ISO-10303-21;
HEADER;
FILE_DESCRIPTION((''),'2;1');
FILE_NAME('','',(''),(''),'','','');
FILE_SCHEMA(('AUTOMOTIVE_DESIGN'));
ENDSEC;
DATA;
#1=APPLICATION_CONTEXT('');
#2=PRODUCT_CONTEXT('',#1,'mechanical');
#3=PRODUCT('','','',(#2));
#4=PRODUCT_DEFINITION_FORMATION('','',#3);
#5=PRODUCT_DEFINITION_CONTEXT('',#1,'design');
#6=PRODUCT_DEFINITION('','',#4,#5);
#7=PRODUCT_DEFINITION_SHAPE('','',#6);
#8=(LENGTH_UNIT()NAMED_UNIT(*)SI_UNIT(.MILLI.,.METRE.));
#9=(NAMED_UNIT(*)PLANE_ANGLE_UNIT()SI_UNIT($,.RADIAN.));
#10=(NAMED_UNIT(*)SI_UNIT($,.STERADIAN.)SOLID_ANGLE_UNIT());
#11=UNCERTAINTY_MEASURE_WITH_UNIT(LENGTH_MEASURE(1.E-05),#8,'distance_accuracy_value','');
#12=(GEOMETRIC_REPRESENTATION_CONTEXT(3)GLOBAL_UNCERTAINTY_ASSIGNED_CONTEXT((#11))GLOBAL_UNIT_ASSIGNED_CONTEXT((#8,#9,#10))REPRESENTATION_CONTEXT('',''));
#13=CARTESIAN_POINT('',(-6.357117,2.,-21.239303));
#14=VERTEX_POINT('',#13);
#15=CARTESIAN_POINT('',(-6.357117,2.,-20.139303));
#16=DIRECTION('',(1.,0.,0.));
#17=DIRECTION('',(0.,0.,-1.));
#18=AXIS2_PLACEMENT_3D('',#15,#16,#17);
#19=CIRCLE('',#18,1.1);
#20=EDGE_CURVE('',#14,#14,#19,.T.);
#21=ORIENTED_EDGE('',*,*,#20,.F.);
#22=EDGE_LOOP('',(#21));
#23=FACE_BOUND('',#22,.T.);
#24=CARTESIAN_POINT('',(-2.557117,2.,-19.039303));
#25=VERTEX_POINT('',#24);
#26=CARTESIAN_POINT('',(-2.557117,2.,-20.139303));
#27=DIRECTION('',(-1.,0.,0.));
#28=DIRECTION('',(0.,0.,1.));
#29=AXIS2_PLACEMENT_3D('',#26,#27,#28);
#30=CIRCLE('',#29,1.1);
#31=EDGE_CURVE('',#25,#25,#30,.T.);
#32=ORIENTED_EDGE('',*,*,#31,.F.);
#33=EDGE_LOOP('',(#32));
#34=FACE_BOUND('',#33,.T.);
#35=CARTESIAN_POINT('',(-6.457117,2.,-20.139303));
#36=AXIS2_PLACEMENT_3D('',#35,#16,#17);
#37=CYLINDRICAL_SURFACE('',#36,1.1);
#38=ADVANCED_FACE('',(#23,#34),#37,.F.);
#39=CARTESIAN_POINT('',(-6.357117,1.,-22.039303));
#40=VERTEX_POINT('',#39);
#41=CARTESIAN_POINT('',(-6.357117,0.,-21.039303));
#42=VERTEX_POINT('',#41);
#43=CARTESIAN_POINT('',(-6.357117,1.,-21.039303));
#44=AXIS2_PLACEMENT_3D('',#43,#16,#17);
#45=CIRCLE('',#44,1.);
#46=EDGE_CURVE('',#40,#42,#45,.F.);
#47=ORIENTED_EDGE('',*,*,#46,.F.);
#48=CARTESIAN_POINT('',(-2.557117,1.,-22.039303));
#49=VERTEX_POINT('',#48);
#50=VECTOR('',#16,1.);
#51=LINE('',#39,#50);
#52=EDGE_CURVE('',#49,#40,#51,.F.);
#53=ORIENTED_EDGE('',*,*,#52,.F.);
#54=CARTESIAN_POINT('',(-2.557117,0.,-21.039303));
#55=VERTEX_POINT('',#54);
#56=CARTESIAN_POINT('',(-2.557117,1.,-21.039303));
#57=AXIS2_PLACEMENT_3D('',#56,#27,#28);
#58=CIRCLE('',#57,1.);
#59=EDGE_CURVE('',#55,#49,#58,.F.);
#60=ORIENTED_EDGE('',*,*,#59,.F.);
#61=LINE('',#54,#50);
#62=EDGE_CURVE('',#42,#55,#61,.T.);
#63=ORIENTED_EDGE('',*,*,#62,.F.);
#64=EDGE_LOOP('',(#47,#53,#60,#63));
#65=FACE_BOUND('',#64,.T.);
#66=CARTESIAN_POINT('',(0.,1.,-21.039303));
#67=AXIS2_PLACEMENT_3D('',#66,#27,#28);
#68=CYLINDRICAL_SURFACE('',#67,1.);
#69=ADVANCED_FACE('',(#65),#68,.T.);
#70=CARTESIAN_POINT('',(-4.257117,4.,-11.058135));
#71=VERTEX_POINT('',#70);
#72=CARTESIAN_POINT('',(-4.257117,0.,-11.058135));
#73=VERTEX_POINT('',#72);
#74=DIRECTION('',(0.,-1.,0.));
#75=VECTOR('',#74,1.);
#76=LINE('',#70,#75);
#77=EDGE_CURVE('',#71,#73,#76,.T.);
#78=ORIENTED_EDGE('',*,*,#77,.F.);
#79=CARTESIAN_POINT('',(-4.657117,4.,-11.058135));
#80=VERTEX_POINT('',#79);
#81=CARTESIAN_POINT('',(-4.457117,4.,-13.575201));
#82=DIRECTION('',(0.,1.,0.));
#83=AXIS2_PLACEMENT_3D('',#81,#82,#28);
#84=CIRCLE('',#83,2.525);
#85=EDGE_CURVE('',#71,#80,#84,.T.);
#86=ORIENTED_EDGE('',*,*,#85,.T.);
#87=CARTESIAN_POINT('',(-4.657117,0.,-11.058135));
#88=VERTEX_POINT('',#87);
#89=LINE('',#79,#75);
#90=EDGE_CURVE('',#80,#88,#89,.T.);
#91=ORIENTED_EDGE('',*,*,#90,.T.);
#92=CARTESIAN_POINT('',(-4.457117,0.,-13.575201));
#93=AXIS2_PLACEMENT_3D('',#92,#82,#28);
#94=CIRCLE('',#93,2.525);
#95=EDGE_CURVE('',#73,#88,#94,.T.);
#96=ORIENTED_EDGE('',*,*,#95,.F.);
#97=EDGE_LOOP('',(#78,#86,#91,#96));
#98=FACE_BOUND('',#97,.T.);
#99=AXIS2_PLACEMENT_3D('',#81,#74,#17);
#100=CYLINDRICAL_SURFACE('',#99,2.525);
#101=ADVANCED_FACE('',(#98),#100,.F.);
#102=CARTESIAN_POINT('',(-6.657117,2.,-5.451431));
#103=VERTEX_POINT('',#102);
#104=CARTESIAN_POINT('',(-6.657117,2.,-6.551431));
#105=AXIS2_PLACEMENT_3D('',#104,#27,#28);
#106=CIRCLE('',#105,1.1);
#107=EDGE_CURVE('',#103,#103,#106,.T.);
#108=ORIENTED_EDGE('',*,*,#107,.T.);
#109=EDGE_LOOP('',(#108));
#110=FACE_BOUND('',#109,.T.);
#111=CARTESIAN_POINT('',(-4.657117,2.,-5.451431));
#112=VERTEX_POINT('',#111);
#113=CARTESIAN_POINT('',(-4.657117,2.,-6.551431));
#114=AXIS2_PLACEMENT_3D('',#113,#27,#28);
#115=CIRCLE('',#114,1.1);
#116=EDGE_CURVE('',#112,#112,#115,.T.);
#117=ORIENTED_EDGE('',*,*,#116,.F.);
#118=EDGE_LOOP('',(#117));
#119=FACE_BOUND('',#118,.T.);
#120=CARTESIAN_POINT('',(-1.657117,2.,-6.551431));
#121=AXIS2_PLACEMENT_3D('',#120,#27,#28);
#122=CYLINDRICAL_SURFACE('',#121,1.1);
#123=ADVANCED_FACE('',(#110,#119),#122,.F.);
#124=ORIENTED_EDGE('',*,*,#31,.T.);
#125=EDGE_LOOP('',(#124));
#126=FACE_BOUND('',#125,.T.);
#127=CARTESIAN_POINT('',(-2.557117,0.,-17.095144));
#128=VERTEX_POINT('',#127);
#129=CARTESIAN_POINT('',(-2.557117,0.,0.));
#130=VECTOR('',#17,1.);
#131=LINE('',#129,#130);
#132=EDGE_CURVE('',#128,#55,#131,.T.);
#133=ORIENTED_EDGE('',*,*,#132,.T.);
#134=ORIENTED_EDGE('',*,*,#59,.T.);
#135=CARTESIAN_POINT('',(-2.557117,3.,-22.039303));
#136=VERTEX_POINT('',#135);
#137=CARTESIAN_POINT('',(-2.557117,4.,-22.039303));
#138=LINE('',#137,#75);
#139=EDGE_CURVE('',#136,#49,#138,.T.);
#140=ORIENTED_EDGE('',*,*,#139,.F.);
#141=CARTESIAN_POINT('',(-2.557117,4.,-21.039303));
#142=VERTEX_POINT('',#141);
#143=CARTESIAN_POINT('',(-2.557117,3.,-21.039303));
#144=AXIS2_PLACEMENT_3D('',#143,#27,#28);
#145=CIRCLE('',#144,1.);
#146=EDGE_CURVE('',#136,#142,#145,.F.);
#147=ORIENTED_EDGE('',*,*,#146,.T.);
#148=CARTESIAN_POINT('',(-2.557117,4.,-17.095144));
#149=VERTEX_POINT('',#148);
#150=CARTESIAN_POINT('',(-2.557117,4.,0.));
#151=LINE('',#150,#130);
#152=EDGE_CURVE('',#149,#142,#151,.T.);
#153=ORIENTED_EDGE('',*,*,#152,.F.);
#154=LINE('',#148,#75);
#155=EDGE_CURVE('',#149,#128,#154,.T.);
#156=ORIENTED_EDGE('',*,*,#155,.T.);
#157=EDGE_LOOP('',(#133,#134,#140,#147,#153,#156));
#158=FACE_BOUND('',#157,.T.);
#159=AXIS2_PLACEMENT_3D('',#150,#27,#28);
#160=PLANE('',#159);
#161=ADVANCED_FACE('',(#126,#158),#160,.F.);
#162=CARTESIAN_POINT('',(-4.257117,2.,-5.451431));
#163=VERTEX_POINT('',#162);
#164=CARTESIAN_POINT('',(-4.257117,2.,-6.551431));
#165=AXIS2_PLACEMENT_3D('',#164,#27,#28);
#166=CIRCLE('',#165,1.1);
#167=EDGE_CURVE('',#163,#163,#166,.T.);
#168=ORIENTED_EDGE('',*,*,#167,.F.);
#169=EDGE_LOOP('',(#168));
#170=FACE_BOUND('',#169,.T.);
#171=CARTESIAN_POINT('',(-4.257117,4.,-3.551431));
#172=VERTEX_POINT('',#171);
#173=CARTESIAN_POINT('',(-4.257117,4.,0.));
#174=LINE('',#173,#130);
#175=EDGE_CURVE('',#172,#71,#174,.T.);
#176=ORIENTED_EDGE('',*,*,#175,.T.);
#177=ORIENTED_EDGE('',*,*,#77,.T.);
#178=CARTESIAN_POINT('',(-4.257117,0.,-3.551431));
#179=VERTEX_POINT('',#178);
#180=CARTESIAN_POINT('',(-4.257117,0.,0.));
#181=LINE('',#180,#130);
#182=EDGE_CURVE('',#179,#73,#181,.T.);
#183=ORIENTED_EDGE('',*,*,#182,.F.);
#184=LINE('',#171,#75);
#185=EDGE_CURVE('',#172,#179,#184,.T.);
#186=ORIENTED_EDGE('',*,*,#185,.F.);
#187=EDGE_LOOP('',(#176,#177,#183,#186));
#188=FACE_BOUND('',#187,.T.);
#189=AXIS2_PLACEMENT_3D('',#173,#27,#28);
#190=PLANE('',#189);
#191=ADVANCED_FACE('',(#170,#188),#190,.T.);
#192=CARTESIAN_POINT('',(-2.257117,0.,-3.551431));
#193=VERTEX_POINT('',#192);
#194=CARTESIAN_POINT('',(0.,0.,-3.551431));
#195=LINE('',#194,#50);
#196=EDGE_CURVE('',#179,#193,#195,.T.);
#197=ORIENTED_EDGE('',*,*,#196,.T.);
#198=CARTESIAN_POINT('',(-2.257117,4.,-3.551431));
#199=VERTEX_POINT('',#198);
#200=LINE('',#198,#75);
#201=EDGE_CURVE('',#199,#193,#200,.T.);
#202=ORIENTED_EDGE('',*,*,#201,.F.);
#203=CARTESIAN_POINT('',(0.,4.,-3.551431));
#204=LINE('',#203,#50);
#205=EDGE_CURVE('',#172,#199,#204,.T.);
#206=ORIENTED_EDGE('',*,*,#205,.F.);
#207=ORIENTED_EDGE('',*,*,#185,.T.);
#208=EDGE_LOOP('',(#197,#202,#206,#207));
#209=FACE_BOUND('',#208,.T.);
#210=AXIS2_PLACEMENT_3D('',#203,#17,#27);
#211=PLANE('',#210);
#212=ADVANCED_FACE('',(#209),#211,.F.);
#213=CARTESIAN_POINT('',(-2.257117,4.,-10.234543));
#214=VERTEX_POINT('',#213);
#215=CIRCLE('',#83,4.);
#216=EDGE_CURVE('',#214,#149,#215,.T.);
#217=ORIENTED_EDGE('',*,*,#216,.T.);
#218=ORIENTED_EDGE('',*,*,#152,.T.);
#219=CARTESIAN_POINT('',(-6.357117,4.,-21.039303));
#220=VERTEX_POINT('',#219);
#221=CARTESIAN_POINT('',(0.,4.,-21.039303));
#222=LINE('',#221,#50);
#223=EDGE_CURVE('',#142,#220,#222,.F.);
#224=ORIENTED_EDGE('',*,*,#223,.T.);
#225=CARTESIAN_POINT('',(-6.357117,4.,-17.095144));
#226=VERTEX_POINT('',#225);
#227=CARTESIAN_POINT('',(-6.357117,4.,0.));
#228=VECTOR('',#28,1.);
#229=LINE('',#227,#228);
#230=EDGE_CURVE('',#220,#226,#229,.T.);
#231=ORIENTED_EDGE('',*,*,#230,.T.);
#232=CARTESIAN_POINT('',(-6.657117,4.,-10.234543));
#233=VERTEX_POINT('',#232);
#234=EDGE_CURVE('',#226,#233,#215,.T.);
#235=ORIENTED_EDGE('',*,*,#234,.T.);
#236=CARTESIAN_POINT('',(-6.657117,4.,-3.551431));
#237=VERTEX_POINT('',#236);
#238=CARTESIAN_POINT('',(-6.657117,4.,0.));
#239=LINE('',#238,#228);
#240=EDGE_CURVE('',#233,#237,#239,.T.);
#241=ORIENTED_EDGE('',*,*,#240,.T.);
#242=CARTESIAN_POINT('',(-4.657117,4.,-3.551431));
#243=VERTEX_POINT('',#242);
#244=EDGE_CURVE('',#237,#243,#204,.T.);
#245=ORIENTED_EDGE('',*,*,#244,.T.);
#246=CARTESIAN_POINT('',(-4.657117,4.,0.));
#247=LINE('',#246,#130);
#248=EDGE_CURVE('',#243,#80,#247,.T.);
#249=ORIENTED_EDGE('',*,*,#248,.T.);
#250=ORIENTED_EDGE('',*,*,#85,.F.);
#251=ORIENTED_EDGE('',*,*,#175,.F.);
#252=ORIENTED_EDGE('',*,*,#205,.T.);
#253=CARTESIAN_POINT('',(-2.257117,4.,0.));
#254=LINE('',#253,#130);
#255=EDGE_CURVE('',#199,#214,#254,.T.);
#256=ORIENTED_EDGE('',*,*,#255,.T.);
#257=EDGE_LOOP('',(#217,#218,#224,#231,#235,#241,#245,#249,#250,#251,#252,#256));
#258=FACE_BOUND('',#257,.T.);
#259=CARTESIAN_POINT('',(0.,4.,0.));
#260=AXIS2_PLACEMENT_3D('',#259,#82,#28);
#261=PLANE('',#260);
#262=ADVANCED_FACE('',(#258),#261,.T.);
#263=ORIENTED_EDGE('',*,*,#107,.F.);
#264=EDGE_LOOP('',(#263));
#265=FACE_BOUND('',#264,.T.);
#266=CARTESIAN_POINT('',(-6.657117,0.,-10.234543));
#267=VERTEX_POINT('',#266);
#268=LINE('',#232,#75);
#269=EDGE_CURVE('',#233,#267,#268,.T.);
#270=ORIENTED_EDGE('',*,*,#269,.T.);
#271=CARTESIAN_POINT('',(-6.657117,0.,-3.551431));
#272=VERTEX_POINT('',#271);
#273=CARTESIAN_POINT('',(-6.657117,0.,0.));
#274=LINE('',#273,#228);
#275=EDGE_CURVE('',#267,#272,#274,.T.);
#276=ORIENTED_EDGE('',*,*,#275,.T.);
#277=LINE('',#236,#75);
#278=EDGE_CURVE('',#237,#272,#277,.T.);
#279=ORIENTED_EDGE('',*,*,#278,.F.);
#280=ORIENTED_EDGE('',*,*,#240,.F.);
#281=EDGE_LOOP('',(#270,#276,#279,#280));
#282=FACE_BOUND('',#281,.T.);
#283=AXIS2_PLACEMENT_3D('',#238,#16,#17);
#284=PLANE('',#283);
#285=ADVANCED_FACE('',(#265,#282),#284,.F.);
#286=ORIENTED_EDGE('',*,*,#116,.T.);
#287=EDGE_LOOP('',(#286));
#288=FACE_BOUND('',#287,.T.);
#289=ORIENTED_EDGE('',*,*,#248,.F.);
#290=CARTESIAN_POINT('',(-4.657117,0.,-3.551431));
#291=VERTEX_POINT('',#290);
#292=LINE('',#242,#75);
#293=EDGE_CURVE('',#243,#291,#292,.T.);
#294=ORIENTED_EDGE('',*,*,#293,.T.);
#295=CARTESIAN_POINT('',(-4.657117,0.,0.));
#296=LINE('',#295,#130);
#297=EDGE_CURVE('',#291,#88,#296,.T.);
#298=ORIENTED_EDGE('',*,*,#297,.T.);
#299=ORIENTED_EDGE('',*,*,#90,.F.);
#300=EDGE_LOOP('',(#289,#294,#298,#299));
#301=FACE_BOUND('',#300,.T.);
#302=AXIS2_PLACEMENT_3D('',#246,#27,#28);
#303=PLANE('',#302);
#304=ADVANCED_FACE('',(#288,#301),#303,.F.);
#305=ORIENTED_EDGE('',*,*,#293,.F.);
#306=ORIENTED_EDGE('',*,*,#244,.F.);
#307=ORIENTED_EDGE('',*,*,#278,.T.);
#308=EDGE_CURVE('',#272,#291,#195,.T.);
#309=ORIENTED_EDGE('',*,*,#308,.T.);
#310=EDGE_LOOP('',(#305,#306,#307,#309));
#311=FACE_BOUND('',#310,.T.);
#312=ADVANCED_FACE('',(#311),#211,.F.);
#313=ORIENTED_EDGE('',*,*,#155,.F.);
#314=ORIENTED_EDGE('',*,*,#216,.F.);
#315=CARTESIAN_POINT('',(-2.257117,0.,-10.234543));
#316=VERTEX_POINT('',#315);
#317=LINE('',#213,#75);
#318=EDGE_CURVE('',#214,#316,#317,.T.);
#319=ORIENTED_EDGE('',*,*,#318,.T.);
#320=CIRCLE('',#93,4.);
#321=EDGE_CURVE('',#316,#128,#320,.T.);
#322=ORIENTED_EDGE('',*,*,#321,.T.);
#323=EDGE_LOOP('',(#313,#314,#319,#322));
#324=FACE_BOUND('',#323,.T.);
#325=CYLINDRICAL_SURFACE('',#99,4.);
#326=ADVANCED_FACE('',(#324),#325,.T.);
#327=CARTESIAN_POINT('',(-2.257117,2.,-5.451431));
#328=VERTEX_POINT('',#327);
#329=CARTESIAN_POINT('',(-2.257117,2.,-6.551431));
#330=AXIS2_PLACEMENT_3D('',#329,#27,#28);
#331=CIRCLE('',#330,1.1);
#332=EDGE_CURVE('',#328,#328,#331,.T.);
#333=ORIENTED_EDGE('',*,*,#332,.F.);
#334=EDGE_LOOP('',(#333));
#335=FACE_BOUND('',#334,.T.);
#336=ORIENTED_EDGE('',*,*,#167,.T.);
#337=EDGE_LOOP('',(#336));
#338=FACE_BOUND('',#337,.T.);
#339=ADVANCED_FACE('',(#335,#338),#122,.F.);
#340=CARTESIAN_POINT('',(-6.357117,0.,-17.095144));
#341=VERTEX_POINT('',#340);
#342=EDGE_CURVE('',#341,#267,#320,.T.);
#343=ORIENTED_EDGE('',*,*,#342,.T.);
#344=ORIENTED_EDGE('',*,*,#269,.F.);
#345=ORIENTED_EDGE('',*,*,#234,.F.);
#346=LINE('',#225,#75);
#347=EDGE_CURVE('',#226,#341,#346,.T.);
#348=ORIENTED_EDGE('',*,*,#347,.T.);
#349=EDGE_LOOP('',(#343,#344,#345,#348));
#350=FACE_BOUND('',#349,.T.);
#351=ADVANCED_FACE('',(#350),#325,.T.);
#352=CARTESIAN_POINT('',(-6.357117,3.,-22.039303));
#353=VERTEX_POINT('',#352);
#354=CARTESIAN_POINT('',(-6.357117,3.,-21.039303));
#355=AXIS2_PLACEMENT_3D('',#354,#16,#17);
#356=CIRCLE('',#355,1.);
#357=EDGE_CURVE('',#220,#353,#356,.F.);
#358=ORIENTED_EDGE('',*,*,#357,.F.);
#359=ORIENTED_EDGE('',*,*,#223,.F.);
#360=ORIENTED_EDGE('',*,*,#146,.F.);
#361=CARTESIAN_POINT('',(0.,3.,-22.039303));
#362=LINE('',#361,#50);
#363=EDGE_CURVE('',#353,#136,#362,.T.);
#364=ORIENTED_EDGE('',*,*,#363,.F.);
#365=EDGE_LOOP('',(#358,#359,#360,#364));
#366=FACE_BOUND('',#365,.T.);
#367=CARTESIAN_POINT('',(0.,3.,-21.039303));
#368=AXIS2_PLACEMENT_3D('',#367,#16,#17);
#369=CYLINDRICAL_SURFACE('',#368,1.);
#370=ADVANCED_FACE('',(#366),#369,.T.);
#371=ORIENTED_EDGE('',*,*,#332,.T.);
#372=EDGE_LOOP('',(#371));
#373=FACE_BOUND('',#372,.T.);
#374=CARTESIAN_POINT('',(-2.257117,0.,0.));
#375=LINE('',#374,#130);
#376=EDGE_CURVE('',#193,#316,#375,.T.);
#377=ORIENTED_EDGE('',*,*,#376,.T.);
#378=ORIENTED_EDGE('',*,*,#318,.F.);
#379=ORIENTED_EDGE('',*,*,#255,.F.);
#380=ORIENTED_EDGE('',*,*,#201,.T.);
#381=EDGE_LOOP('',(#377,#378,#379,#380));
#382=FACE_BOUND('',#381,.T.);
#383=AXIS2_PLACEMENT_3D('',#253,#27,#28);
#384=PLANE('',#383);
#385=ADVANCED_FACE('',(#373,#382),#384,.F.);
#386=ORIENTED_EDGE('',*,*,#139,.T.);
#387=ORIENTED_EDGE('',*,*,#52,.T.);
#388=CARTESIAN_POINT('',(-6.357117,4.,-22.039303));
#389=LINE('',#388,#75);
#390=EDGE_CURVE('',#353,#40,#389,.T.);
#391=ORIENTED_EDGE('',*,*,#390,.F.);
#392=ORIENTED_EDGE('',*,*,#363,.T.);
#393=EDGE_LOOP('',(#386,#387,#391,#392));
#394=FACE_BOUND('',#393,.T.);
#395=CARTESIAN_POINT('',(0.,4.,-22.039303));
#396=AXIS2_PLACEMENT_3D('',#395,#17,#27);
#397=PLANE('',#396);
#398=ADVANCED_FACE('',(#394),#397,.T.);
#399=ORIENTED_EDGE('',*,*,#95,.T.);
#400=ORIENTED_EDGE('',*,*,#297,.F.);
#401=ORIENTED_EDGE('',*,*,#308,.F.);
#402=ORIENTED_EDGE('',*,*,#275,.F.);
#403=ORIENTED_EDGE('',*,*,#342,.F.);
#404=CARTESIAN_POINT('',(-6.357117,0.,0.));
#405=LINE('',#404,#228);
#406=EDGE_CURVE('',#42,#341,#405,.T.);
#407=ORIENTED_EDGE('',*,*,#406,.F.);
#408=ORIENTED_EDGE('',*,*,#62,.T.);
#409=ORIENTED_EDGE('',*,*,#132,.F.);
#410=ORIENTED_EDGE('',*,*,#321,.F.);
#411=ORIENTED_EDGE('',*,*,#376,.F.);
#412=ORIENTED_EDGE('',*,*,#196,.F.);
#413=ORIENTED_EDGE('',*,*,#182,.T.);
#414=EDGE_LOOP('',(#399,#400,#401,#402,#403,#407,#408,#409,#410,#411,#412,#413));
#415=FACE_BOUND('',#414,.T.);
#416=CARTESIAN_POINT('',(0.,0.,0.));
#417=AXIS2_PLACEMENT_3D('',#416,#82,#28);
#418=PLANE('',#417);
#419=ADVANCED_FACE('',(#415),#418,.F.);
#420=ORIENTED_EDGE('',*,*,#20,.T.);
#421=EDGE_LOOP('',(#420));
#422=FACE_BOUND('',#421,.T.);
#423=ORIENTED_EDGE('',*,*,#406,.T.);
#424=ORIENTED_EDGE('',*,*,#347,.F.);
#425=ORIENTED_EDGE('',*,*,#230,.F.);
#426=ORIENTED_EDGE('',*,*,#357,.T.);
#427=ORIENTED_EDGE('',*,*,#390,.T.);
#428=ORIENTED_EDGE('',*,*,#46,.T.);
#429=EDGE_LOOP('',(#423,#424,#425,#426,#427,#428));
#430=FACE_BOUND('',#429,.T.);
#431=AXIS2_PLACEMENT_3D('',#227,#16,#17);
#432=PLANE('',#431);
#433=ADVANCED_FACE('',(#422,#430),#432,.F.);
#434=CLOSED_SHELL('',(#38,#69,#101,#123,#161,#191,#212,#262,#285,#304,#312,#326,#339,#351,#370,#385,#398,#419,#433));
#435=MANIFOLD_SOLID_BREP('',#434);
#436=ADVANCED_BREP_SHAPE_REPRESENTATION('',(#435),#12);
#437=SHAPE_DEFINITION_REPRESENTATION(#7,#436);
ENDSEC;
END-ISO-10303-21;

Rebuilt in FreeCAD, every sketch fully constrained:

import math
import FreeCAD as App
import Part
import Sketcher


def edges_at(feature, points):
    """Names of the edges that pass closest to the given points."""
    edges = feature.Shape.Edges
    near = lambda p: min(range(len(edges)), key=lambda i: edges[i].distToShape(Part.Vertex(*p))[0])
    return sorted({f"Edge{near(p) + 1}" for p in points})

doc = App.newDocument("Part")
body = doc.addObject("PartDesign::Body", "Body")

# Sketch on XZ plane
sketch1 = body.newObject("Sketcher::SketchObject", "Sketch")
sketch1.AttachmentSupport = (doc.getObject("XZ_Plane"), [""])
sketch1.MapMode = "FlatFace"
sketch1.addGeometry(Part.LineSegment(App.Vector(-6.66, -10.23, 0), App.Vector(-6.66, -3.55, 0)), False)
sketch1.addGeometry(Part.LineSegment(App.Vector(-6.66, -3.55, 0), App.Vector(-4.66, -3.55, 0)), False)
sketch1.addGeometry(Part.LineSegment(App.Vector(-4.66, -3.55, 0), App.Vector(-4.66, -11.06, 0)), False)
sketch1.addGeometry(Part.ArcOfCircle(Part.Circle(App.Vector(-4.46, -13.58, 0), App.Vector(0, 0, 1), 2.52), math.radians(95), math.radians(445)), False)
sketch1.addGeometry(Part.LineSegment(App.Vector(-4.26, -11.06, 0), App.Vector(-4.26, -3.55, 0)), False)
sketch1.addGeometry(Part.LineSegment(App.Vector(-4.26, -3.55, 0), App.Vector(-2.26, -3.55, 0)), False)
sketch1.addGeometry(Part.LineSegment(App.Vector(-2.26, -3.55, 0), App.Vector(-2.26, -10.23, 0)), False)
sketch1.addGeometry(Part.ArcOfCircle(Part.Circle(App.Vector(-4.46, -13.58, 0), App.Vector(0, 0, 1), 4), math.radians(-62), math.radians(57)), False)
sketch1.addGeometry(Part.LineSegment(App.Vector(-2.56, -17.1, 0), App.Vector(-2.56, -22.04, 0)), False)
sketch1.addGeometry(Part.LineSegment(App.Vector(-2.56, -22.04, 0), App.Vector(-6.36, -22.04, 0)), False)
sketch1.addGeometry(Part.LineSegment(App.Vector(-6.36, -22.04, 0), App.Vector(-6.36, -17.1, 0)), False)
sketch1.addGeometry(Part.ArcOfCircle(Part.Circle(App.Vector(-4.46, -13.58, 0), App.Vector(0, 0, 1), 4), math.radians(123), math.radians(242)), False)
sketch1.addConstraint(Sketcher.Constraint("Coincident", 0, 2, 1, 1))
sketch1.addConstraint(Sketcher.Constraint("Coincident", 1, 2, 2, 1))
sketch1.addConstraint(Sketcher.Constraint("Coincident", 2, 2, 3, 1))
sketch1.addConstraint(Sketcher.Constraint("Coincident", 3, 2, 4, 1))
sketch1.addConstraint(Sketcher.Constraint("Coincident", 4, 2, 5, 1))
sketch1.addConstraint(Sketcher.Constraint("Coincident", 5, 2, 6, 1))
sketch1.addConstraint(Sketcher.Constraint("Coincident", 6, 2, 7, 2))
sketch1.addConstraint(Sketcher.Constraint("Coincident", 7, 1, 8, 1))
sketch1.addConstraint(Sketcher.Constraint("Coincident", 8, 2, 9, 1))
sketch1.addConstraint(Sketcher.Constraint("Coincident", 9, 2, 10, 1))
sketch1.addConstraint(Sketcher.Constraint("Coincident", 10, 2, 11, 2))
sketch1.addConstraint(Sketcher.Constraint("Coincident", 11, 1, 0, 1))
sketch1.addConstraint(Sketcher.Constraint("Vertical", 0))
sketch1.addConstraint(Sketcher.Constraint("Horizontal", 1))
sketch1.addConstraint(Sketcher.Constraint("Vertical", 2))
sketch1.addConstraint(Sketcher.Constraint("Vertical", 4))
sketch1.addConstraint(Sketcher.Constraint("Horizontal", 5))
sketch1.addConstraint(Sketcher.Constraint("Vertical", 6))
sketch1.addConstraint(Sketcher.Constraint("Vertical", 8))
sketch1.addConstraint(Sketcher.Constraint("Horizontal", 9))
sketch1.addConstraint(Sketcher.Constraint("Vertical", 10))
sketch1.addConstraint(Sketcher.Constraint("Coincident", 7, 3, 3, 3))
sketch1.addConstraint(Sketcher.Constraint("Coincident", 11, 3, 3, 3))
sketch1.addConstraint(Sketcher.Constraint("Equal", 7, 11))
sketch1.addConstraint(Sketcher.Constraint("Horizontal", 2, 2, 3, 2))
sketch1.addConstraint(Sketcher.Constraint("Horizontal", 1, 2, 4, 2))
sketch1.addConstraint(Sketcher.Constraint("Horizontal", 7, 1, 10, 2))
sketch1.addConstraint(Sketcher.Constraint("Horizontal", 6, 2, 11, 1))
sketch1.addConstraint(Sketcher.Constraint("Radius", 7, 4.0))
sketch1.addConstraint(Sketcher.Constraint("DistanceX", 1, 1, 1, 2, 2.0))
sketch1.addConstraint(Sketcher.Constraint("DistanceX", 9, 2, 9, 1, 3.8))
sketch1.addConstraint(Sketcher.Constraint("Radius", 3, 2.525))
sketch1.addConstraint(Sketcher.Constraint("DistanceX", 0, 2, 7, 3, 2.2))
sketch1.addConstraint(Sketcher.Constraint("DistanceY", 0, 1, 0, 2, 6.683112))
sketch1.addConstraint(Sketcher.Constraint("DistanceY", 8, 2, 8, 1, 4.944158))
sketch1.addConstraint(Sketcher.Constraint("DistanceY", 3, 3, -1, 1, 13.575201))
sketch1.addConstraint(Sketcher.Constraint("DistanceX", 3, 3, -1, 1, 4.457117))
pad1 = body.newObject("PartDesign::Pad", "Pad")
pad1.Profile = sketch1
pad1.Length = 4
pad1.Reversed = True

# Sketch on YZ plane
sketch2 = body.newObject("Sketcher::SketchObject", "Sketch001")
sketch2.AttachmentSupport = (doc.getObject("YZ_Plane"), [""])
sketch2.MapMode = "FlatFace"
sketch2.AttachmentOffset = App.Placement(App.Vector(0, 0, -2.457117), App.Rotation())
sketch2.addGeometry(Part.Circle(App.Vector(2, -20.1, 0), App.Vector(0, 0, 1), 1.1), False)
sketch2.addConstraint(Sketcher.Constraint("Diameter", 0, 2.2))
sketch2.addConstraint(Sketcher.Constraint("DistanceX", -1, 1, 0, 3, 2.0))
sketch2.addConstraint(Sketcher.Constraint("DistanceY", 0, 3, -1, 1, 20.139303))
pocket1 = body.newObject("PartDesign::Pocket", "Pocket")
pocket1.Profile = sketch2
pocket1.Length = 4

# Sketch on YZ plane
sketch3 = body.newObject("Sketcher::SketchObject", "Sketch002")
sketch3.AttachmentSupport = (doc.getObject("YZ_Plane"), [""])
sketch3.MapMode = "FlatFace"
sketch3.AttachmentOffset = App.Placement(App.Vector(0, 0, -6.657117), App.Rotation())
sketch3.addGeometry(Part.Circle(App.Vector(2, -6.6, 0), App.Vector(0, 0, 1), 1.1), False)
sketch3.addConstraint(Sketcher.Constraint("Diameter", 0, 2.2))
sketch3.addConstraint(Sketcher.Constraint("DistanceX", -1, 1, 0, 3, 2.0))
sketch3.addConstraint(Sketcher.Constraint("DistanceY", 0, 3, -1, 1, 6.551431))
pocket2 = body.newObject("PartDesign::Pocket", "Pocket001")
pocket2.Profile = sketch3
pocket2.Length = 5
pocket2.Reversed = True
doc.recompute()

fillet = body.newObject("PartDesign::Fillet", "Fillet")
fillet.Base = (pocket2, edges_at(pocket2, [(-4.457, 4, -22.039), (-4.457, 0, -22.039)]))
fillet.Radius = 1

doc.recompute()
